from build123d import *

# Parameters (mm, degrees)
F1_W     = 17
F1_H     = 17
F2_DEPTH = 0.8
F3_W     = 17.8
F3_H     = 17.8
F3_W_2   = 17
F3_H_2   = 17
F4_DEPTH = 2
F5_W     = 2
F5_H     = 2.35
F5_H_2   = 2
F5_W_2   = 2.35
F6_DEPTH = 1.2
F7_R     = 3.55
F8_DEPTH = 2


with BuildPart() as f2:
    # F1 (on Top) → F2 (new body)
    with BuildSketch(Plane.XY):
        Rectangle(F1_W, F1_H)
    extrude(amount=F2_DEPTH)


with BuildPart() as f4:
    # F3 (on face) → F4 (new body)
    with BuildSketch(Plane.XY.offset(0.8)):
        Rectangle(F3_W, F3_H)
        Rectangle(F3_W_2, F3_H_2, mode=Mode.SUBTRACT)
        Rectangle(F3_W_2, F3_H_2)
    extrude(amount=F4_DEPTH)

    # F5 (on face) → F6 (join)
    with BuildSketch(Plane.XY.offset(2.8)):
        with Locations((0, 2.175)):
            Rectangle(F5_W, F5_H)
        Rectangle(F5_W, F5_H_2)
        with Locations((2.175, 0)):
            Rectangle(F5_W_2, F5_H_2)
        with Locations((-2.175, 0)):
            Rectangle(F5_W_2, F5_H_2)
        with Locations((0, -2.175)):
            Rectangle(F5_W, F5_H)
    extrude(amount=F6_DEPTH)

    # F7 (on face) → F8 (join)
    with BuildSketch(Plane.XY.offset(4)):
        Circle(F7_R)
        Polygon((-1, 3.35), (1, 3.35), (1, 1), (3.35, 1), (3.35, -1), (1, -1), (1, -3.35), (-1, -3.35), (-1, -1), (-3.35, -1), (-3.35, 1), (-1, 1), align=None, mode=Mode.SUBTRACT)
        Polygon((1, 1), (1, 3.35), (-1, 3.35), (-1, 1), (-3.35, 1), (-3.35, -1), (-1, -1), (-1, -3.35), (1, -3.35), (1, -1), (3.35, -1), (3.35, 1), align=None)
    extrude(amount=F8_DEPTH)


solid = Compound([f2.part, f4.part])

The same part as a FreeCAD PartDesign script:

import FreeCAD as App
import Part
import Sketcher
from FreeCAD import Vector


def add_polygon(sketch, points):
    """Adds a closed chain of lines whose ends are joined by coincident constraints."""
    first, n = sketch.GeometryCount, len(points)
    for a, b in zip(points, points[1:] + points[:1]):
        sketch.addGeometry(Part.LineSegment(App.Vector(*a, 0), App.Vector(*b, 0)), False)
    for i in range(n):
        sketch.addConstraint(Sketcher.Constraint("Coincident", first + i, 2, first + (i + 1) % n, 1))

doc = App.newDocument("Part")
params = doc.addObject("Spreadsheet::Sheet", "Params")
for row, (alias, value) in enumerate([
    ("sketch1_width", "17 mm"),
    ("pad1_length", "0.8 mm"),
    ("sketch2_width", "17.8 mm"),
    ("pad2_length", "2 mm"),
    ("sketch3_width", "2 mm"),
    ("sketch3_width2", "2.35 mm"),
    ("pad3_length", "1.2 mm"),
    ("sketch4_diameter", "7.1 mm"),
    ("pad4_length", "2 mm"),
], start=1):
    params.set(f"A{row}", alias)
    params.set(f"B{row}", "=" + value)
    params.setAlias(f"B{row}", alias)

body = doc.addObject("PartDesign::Body", "Body")

# Sketch on XY plane
sketch1 = body.newObject("Sketcher::SketchObject", "Sketch")
sketch1.AttachmentSupport = (doc.getObject("XY_Plane"), [""])
sketch1.MapMode = "FlatFace"
add_polygon(sketch1, [(-8, 8), (-8, -8), (8, -8), (8, 8)])  # lines 0-3
sketch1.addConstraint([
    Sketcher.Constraint("Vertical", 0),
    Sketcher.Constraint("Horizontal", 1),
    Sketcher.Constraint("Vertical", 2),
    Sketcher.Constraint("Horizontal", 3),
    Sketcher.Constraint("Symmetric", 0, 2, 2, 2, -1, 1),
    Sketcher.Constraint("Equal", 3, 0),
    Sketcher.Constraint("DistanceX", 1, 1, 1, 2, 17.0),
])
sketch1.setExpression("Constraints[10]", "Params.sketch1_width")
pad1 = body.newObject("PartDesign::Pad", "Pad")
pad1.Profile = sketch1
pad1.setExpression("Length", "Params.pad1_length")
body2 = doc.addObject("PartDesign::Body", "Body001")

# Sketch on XY plane
sketch2 = body2.newObject("Sketcher::SketchObject", "Sketch001")
sketch2.AttachmentSupport = (doc.getObject("XY_Plane001"), [""])
sketch2.MapMode = "FlatFace"
sketch2.AttachmentOffset = App.Placement(Vector(0, 0, 0.8), App.Rotation())
add_polygon(sketch2, [(-9, 9), (-9, -9), (9, -9), (9, 9)])  # lines 0-3
sketch2.addConstraint([
    Sketcher.Constraint("Vertical", 0),
    Sketcher.Constraint("Horizontal", 1),
    Sketcher.Constraint("Vertical", 2),
    Sketcher.Constraint("Horizontal", 3),
    Sketcher.Constraint("Symmetric", 0, 2, 2, 2, -1, 1),
    Sketcher.Constraint("Equal", 3, 0),
    Sketcher.Constraint("DistanceX", 1, 1, 1, 2, 17.8),
])
sketch2.setExpression("Constraints[10]", "Params.sketch2_width")
pad2 = body2.newObject("PartDesign::Pad", "Pad001")
pad2.Profile = sketch2
pad2.setExpression("Length", "Params.pad2_length")

# Sketch on XY plane
sketch3 = body2.newObject("Sketcher::SketchObject", "Sketch002")
sketch3.AttachmentSupport = (doc.getObject("XY_Plane001"), [""])
sketch3.MapMode = "FlatFace"
sketch3.AttachmentOffset = App.Placement(Vector(0, 0, 2.8), App.Rotation())
add_polygon(sketch3, [(-1, 3.4), (-1, 1), (-3.4, 1), (-3.4, -1), (-1, -1), (-1, -3.4), (1, -3.4), (1, -1), (3.4, -1), (3.4, 1), (1, 1), (1, 3.4)])  # lines 0-11
sketch3.addConstraint([
    Sketcher.Constraint("Vertical", 0),
    Sketcher.Constraint("Horizontal", 1),
    Sketcher.Constraint("Vertical", 2),
    Sketcher.Constraint("Horizontal", 3),
    Sketcher.Constraint("Vertical", 4),
    Sketcher.Constraint("Horizontal", 5),
    Sketcher.Constraint("Vertical", 6),
    Sketcher.Constraint("Horizontal", 7),
    Sketcher.Constraint("Vertical", 8),
    Sketcher.Constraint("Horizontal", 9),
    Sketcher.Constraint("Vertical", 10),
    Sketcher.Constraint("Horizontal", 11),
    Sketcher.Constraint("Symmetric", 0, 2, 6, 2, -1, 1),
    Sketcher.Constraint("Symmetric", 2, 2, 8, 2, -1, 1),
    Sketcher.Constraint("Symmetric", 4, 2, 10, 2, -1, 1),
    Sketcher.Constraint("Symmetric", 3, 2, 6, 2, -2),
    Sketcher.Constraint("Equal", 9, 0),
    Sketcher.Constraint("Equal", 11, 2),
    Sketcher.Constraint("DistanceX", 5, 1, 5, 2, 2.0),
    Sketcher.Constraint("DistanceX", 1, 2, 1, 1, 2.35),
])
sketch3.setExpression("Constraints[30]", "Params.sketch3_width")
sketch3.setExpression("Constraints[31]", "Params.sketch3_width2")
pad3 = body2.newObject("PartDesign::Pad", "Pad002")
pad3.Profile = sketch3
pad3.setExpression("Length", "Params.pad3_length")

# Sketch on XY plane
sketch4 = body2.newObject("Sketcher::SketchObject", "Sketch003")
sketch4.AttachmentSupport = (doc.getObject("XY_Plane001"), [""])
sketch4.MapMode = "FlatFace"
sketch4.AttachmentOffset = App.Placement(Vector(0, 0, 4), App.Rotation())
sketch4.addGeometry(Part.Circle(Vector(0, 0, 0), Vector(0, 0, 1), 3.5), False)
sketch4.addConstraint([
    Sketcher.Constraint("Coincident", 0, 3, -1, 1),
    Sketcher.Constraint("Diameter", 0, 7.1),
])
sketch4.setExpression("Constraints[1]", "Params.sketch4_diameter")
pad4 = body2.newObject("PartDesign::Pad", "Pad003")
pad4.Profile = sketch4
pad4.setExpression("Length", "Params.pad4_length")

doc.recompute()
